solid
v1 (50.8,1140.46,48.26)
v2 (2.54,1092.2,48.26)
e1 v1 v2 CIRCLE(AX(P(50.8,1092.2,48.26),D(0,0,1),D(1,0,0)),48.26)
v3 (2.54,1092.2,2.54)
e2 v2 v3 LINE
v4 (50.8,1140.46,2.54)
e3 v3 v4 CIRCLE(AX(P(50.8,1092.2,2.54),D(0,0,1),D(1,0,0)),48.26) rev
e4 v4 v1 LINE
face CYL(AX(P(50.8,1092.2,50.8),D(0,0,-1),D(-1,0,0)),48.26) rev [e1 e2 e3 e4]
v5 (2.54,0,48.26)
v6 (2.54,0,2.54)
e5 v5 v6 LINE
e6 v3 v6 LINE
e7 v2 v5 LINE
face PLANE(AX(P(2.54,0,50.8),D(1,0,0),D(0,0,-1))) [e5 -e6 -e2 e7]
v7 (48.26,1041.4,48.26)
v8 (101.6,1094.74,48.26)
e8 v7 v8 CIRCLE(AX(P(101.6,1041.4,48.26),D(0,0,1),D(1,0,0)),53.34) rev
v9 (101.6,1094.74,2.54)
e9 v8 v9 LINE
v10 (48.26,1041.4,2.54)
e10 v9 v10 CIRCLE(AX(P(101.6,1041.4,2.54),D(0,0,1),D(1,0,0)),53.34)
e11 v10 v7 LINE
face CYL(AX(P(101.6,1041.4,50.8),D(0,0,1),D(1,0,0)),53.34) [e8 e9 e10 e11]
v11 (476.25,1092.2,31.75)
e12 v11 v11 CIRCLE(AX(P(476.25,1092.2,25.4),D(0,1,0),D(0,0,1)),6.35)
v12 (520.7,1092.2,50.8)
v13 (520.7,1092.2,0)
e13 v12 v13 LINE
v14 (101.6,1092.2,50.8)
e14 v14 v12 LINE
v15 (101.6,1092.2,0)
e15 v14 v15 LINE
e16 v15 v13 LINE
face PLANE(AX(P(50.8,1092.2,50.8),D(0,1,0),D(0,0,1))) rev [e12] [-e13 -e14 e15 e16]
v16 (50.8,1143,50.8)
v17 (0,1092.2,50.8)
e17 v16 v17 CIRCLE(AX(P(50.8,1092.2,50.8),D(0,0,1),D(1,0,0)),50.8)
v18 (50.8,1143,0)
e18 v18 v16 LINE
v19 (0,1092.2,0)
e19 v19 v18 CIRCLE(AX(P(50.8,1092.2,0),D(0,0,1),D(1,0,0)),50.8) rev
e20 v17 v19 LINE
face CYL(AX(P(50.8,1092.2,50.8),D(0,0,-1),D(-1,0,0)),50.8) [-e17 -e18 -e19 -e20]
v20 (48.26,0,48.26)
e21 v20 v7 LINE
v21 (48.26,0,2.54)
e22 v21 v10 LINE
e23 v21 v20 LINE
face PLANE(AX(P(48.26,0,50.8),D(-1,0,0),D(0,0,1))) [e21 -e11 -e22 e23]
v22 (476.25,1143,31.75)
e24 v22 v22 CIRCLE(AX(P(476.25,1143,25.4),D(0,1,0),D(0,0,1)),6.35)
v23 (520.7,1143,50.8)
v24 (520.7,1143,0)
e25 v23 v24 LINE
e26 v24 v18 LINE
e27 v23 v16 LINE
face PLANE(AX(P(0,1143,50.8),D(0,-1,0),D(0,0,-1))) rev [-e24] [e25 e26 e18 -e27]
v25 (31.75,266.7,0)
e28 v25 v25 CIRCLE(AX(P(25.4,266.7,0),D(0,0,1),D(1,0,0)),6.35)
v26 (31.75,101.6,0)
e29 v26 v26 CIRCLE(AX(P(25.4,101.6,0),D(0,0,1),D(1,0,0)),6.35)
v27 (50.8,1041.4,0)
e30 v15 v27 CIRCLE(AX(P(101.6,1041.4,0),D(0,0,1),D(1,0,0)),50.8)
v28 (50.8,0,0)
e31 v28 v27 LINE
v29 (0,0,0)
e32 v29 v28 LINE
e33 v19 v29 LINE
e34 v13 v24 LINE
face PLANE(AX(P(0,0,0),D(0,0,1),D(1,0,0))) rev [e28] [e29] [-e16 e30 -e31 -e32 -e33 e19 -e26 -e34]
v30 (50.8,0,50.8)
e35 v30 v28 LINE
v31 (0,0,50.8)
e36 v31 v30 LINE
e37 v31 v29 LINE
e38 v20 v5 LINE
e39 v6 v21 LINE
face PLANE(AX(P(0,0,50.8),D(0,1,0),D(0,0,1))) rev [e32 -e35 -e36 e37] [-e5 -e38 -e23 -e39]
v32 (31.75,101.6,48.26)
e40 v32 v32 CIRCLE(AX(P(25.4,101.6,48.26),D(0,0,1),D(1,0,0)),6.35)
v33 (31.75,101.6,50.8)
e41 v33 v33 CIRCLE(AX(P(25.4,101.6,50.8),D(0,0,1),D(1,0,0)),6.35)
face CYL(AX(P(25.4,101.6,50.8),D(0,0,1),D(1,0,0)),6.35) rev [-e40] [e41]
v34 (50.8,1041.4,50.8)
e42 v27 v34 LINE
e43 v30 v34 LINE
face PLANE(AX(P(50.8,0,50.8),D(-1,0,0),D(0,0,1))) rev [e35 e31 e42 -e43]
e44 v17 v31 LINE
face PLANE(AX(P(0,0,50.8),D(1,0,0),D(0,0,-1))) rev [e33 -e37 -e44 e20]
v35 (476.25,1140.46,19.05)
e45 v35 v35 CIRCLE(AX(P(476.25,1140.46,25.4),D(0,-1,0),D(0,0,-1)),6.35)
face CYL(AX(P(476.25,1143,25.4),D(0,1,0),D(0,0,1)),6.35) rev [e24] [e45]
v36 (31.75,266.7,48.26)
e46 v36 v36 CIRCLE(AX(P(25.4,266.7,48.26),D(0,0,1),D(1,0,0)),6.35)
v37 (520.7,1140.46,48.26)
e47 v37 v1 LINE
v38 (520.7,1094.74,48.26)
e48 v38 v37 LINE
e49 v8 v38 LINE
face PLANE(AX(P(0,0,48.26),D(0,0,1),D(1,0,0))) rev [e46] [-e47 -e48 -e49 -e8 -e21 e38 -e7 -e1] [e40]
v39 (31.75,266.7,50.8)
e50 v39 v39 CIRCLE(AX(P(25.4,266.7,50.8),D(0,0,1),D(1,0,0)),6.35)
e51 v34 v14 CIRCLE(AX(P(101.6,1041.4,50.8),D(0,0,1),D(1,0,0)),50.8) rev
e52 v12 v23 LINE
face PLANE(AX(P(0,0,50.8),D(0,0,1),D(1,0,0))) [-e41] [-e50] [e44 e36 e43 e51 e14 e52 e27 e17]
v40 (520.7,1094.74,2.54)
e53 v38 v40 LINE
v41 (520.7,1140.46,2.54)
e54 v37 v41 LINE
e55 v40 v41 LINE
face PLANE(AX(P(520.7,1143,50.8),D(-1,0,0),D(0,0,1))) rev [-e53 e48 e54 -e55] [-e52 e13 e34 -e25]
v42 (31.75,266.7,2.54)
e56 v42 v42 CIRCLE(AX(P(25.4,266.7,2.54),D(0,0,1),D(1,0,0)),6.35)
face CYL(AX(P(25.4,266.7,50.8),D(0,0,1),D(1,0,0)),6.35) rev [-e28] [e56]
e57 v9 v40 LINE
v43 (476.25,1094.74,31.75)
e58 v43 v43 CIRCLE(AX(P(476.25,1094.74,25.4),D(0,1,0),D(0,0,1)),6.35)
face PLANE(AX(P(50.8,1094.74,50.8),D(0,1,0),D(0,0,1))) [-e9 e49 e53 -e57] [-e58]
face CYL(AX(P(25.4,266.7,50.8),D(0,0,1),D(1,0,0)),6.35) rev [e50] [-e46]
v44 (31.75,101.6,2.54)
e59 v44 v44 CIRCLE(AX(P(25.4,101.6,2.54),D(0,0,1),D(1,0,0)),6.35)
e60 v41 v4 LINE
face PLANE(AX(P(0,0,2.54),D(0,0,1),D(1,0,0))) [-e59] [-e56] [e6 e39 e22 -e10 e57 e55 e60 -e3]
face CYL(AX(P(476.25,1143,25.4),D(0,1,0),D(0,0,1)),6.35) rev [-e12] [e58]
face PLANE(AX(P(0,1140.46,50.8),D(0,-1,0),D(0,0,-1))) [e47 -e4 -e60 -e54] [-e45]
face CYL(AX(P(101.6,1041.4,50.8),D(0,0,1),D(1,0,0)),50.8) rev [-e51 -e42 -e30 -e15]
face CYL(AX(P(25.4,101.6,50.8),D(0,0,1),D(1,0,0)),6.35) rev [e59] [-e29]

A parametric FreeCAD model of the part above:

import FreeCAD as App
import Part
import Sketcher
from FreeCAD import Vector
Q = App.Units.Quantity


def edges_at(feature, points):
    """Names of the edges that pass closest to the given points."""
    edges = feature.Shape.Edges
    near = lambda p: min(range(len(edges)), key=lambda i: edges[i].distToShape(Part.Vertex(*p))[0])
    return sorted({f"Edge{near(p) + 1}" for p in points})


def faces_at(feature, points):
    """Names of the faces that lie closest to the given points."""
    faces = feature.Shape.Faces
    near = lambda p: min(range(len(faces)), key=lambda i: faces[i].distToShape(Part.Vertex(*p))[0])
    return sorted({f"Face{near(p) + 1}" for p in points})

doc = App.newDocument("Part")
body = doc.addObject("PartDesign::Body", "Body")

sketch1 = doc.addObject("Sketcher::SketchObject", "Sketch")
body.addObject(sketch1)
sketch1.AttachmentSupport = (doc.XY_Plane, [""])
sketch1.MapMode = "FlatFace"
sketch1.addGeometry([
    Part.LineSegment(Vector(0, 1143, 0), Vector(0, 0, 0)),
    Part.LineSegment(Vector(0, 0, 0), Vector(50.8, 0, 0)),
    Part.LineSegment(Vector(50.8, 0, 0), Vector(50.8, 1092.2, 0)),
    Part.LineSegment(Vector(50.8, 1092.2, 0), Vector(520.7, 1092.2, 0)),
    Part.LineSegment(Vector(520.7, 1092.2, 0), Vector(520.7, 1143, 0)),
    Part.LineSegment(Vector(520.7, 1143, 0), Vector(0, 1143, 0)),
], False)
sketch1.addConstraint([
    Sketcher.Constraint("Coincident", 0, 2, 1, 1),
    Sketcher.Constraint("Coincident", 1, 2, 2, 1),
    Sketcher.Constraint("Coincident", 2, 2, 3, 1),
    Sketcher.Constraint("Coincident", 3, 2, 4, 1),
    Sketcher.Constraint("Coincident", 4, 2, 5, 1),
    Sketcher.Constraint("Coincident", 5, 2, 0, 1),
    Sketcher.Constraint("Vertical", 0),
    Sketcher.Constraint("Horizontal", 1),
    Sketcher.Constraint("Vertical", 2),
    Sketcher.Constraint("Horizontal", 3),
    Sketcher.Constraint("Vertical", 4),
    Sketcher.Constraint("Horizontal", 5),
    Sketcher.Constraint("Coincident", 0, 2, -1, 1),
    Sketcher.Constraint("Equal", 1, 4),
    Sketcher.Constraint("DistanceX", 1, 1, 1, 2, Q("2 in")),
    Sketcher.Constraint("DistanceY", 0, 2, 0, 1, Q("45 in")),
    Sketcher.Constraint("DistanceX", 3, 1, 3, 2, Q("18.5 in")),
])
pad1 = doc.addObject("PartDesign::Pad", "Pad")
body.addObject(pad1)
pad1.Profile = sketch1
pad1.Length = Q("2 in")
doc.recompute()

fillet = doc.addObject("PartDesign::Fillet", "Fillet")
body.addObject(fillet)
fillet.Base = (pad1, edges_at(pad1, [(0, 1143, 25.4), (50.8, 1092.2, 25.4)]))
fillet.Radius = Q("2 in")
doc.recompute()

thickness = doc.addObject("PartDesign::Thickness", "Thickness")
body.addObject(thickness)
thickness.Base = (fillet, faces_at(fillet, [(520.7, 1117.6, 25.4)]))
thickness.Value = Q("0.1 in")
thickness.Reversed = True
thickness.Join = "Intersection"

sketch2 = doc.addObject("Sketcher::SketchObject", "Sketch001")
body.addObject(sketch2)
sketch2.AttachmentSupport = (doc.XZ_Plane, [""])
sketch2.MapMode = "FlatFace"
sketch2.addGeometry([
    Part.LineSegment(Vector(2.54, 48.26, 0), Vector(2.54, 2.54, 0)),
    Part.LineSegment(Vector(2.54, 2.54, 0), Vector(48.26, 2.54, 0)),
    Part.LineSegment(Vector(48.26, 2.54, 0), Vector(48.26, 48.26, 0)),
    Part.LineSegment(Vector(48.26, 48.26, 0), Vector(2.54, 48.26, 0)),
], False)
sketch2.addConstraint([
    Sketcher.Constraint("Coincident", 0, 2, 1, 1),
    Sketcher.Constraint("Coincident", 1, 2, 2, 1),
    Sketcher.Constraint("Coincident", 2, 2, 3, 1),
    Sketcher.Constraint("Coincident", 3, 2, 0, 1),
    Sketcher.Constraint("Vertical", 0),
    Sketcher.Constraint("Horizontal", 1),
    Sketcher.Constraint("Vertical", 2),
    Sketcher.Constraint("Horizontal", 3),
    Sketcher.Constraint("Equal", 3, 0),
    Sketcher.Constraint("DistanceX", 1, 1, 1, 2, Q("1.8 in")),
    Sketcher.Constraint("DistanceX", -1, 1, 0, 2, Q("0.1 in")),
    Sketcher.Constraint("DistanceY", -1, 1, 0, 2, Q("0.1 in")),
])
pocket1 = doc.addObject("PartDesign::Pocket", "Pocket")
body.addObject(pocket1)
pocket1.Profile = sketch2
pocket1.Length = Q("2 in")

sketch3 = doc.addObject("Sketcher::SketchObject", "Sketch002")
body.addObject(sketch3)
sketch3.AttachmentSupport = (doc.XZ_Plane, [""])
sketch3.MapMode = "FlatFace"
sketch3.AttachmentOffset = App.Placement(Vector(0, 0, -45 * 25.4), App.Rotation())
sketch3.addGeometry(Part.Circle(Vector(476.25, 25.4, 0), Vector(0, 0, 1), 6.35), False)
sketch3.addConstraint([
    Sketcher.Constraint("Diameter", 0, Q("0.5 in")),
    Sketcher.Constraint("DistanceY", -1, 1, 0, 3, Q("1 in")),
    Sketcher.Constraint("DistanceX", -1, 1, 0, 3, Q("18.75 in")),
])
doc.recompute()
hole = doc.addObject("PartDesign::Hole", "Hole")
body.addObject(hole)
hole.Profile = sketch3
hole.ThreadType = "None"
hole.Diameter = Q("0.5 in")
hole.DepthType = "ThroughAll"
hole.Reversed = True

sketch4 = doc.addObject("Sketcher::SketchObject", "Sketch003")
body.addObject(sketch4)
sketch4.AttachmentSupport = (doc.XY_Plane, [""])
sketch4.MapMode = "FlatFace"
sketch4.AttachmentOffset = App.Placement(Vector(0, 0, 2 * 25.4), App.Rotation())
sketch4.addGeometry([
    Part.Circle(Vector(25.4, 101.6, 0), Vector(0, 0, 1), 6.35),
    Part.Circle(Vector(25.4, 266.7, 0), Vector(0, 0, 1), 6.35),
], False)
sketch4.addConstraint([
    Sketcher.Constraint("Equal", 0, 1),
    Sketcher.Constraint("Vertical", 0, 3, 1, 3),
    Sketcher.Constraint("Diameter", 0, Q("0.5 in")),
    Sketcher.Constraint("DistanceX", -1, 1, 0, 3, Q("1 in")),
    Sketcher.Constraint("DistanceY", -1, 1, 0, 3, Q("4 in")),
    Sketcher.Constraint("DistanceY", -1, 1, 1, 3, Q("10.5 in")),
])
doc.recompute()
hole2 = doc.addObject("PartDesign::Hole", "Hole001")
body.addObject(hole2)
hole2.Profile = sketch4
hole2.ThreadType = "None"
hole2.Diameter = Q("0.5 in")
hole2.DepthType = "ThroughAll"

doc.recompute()
